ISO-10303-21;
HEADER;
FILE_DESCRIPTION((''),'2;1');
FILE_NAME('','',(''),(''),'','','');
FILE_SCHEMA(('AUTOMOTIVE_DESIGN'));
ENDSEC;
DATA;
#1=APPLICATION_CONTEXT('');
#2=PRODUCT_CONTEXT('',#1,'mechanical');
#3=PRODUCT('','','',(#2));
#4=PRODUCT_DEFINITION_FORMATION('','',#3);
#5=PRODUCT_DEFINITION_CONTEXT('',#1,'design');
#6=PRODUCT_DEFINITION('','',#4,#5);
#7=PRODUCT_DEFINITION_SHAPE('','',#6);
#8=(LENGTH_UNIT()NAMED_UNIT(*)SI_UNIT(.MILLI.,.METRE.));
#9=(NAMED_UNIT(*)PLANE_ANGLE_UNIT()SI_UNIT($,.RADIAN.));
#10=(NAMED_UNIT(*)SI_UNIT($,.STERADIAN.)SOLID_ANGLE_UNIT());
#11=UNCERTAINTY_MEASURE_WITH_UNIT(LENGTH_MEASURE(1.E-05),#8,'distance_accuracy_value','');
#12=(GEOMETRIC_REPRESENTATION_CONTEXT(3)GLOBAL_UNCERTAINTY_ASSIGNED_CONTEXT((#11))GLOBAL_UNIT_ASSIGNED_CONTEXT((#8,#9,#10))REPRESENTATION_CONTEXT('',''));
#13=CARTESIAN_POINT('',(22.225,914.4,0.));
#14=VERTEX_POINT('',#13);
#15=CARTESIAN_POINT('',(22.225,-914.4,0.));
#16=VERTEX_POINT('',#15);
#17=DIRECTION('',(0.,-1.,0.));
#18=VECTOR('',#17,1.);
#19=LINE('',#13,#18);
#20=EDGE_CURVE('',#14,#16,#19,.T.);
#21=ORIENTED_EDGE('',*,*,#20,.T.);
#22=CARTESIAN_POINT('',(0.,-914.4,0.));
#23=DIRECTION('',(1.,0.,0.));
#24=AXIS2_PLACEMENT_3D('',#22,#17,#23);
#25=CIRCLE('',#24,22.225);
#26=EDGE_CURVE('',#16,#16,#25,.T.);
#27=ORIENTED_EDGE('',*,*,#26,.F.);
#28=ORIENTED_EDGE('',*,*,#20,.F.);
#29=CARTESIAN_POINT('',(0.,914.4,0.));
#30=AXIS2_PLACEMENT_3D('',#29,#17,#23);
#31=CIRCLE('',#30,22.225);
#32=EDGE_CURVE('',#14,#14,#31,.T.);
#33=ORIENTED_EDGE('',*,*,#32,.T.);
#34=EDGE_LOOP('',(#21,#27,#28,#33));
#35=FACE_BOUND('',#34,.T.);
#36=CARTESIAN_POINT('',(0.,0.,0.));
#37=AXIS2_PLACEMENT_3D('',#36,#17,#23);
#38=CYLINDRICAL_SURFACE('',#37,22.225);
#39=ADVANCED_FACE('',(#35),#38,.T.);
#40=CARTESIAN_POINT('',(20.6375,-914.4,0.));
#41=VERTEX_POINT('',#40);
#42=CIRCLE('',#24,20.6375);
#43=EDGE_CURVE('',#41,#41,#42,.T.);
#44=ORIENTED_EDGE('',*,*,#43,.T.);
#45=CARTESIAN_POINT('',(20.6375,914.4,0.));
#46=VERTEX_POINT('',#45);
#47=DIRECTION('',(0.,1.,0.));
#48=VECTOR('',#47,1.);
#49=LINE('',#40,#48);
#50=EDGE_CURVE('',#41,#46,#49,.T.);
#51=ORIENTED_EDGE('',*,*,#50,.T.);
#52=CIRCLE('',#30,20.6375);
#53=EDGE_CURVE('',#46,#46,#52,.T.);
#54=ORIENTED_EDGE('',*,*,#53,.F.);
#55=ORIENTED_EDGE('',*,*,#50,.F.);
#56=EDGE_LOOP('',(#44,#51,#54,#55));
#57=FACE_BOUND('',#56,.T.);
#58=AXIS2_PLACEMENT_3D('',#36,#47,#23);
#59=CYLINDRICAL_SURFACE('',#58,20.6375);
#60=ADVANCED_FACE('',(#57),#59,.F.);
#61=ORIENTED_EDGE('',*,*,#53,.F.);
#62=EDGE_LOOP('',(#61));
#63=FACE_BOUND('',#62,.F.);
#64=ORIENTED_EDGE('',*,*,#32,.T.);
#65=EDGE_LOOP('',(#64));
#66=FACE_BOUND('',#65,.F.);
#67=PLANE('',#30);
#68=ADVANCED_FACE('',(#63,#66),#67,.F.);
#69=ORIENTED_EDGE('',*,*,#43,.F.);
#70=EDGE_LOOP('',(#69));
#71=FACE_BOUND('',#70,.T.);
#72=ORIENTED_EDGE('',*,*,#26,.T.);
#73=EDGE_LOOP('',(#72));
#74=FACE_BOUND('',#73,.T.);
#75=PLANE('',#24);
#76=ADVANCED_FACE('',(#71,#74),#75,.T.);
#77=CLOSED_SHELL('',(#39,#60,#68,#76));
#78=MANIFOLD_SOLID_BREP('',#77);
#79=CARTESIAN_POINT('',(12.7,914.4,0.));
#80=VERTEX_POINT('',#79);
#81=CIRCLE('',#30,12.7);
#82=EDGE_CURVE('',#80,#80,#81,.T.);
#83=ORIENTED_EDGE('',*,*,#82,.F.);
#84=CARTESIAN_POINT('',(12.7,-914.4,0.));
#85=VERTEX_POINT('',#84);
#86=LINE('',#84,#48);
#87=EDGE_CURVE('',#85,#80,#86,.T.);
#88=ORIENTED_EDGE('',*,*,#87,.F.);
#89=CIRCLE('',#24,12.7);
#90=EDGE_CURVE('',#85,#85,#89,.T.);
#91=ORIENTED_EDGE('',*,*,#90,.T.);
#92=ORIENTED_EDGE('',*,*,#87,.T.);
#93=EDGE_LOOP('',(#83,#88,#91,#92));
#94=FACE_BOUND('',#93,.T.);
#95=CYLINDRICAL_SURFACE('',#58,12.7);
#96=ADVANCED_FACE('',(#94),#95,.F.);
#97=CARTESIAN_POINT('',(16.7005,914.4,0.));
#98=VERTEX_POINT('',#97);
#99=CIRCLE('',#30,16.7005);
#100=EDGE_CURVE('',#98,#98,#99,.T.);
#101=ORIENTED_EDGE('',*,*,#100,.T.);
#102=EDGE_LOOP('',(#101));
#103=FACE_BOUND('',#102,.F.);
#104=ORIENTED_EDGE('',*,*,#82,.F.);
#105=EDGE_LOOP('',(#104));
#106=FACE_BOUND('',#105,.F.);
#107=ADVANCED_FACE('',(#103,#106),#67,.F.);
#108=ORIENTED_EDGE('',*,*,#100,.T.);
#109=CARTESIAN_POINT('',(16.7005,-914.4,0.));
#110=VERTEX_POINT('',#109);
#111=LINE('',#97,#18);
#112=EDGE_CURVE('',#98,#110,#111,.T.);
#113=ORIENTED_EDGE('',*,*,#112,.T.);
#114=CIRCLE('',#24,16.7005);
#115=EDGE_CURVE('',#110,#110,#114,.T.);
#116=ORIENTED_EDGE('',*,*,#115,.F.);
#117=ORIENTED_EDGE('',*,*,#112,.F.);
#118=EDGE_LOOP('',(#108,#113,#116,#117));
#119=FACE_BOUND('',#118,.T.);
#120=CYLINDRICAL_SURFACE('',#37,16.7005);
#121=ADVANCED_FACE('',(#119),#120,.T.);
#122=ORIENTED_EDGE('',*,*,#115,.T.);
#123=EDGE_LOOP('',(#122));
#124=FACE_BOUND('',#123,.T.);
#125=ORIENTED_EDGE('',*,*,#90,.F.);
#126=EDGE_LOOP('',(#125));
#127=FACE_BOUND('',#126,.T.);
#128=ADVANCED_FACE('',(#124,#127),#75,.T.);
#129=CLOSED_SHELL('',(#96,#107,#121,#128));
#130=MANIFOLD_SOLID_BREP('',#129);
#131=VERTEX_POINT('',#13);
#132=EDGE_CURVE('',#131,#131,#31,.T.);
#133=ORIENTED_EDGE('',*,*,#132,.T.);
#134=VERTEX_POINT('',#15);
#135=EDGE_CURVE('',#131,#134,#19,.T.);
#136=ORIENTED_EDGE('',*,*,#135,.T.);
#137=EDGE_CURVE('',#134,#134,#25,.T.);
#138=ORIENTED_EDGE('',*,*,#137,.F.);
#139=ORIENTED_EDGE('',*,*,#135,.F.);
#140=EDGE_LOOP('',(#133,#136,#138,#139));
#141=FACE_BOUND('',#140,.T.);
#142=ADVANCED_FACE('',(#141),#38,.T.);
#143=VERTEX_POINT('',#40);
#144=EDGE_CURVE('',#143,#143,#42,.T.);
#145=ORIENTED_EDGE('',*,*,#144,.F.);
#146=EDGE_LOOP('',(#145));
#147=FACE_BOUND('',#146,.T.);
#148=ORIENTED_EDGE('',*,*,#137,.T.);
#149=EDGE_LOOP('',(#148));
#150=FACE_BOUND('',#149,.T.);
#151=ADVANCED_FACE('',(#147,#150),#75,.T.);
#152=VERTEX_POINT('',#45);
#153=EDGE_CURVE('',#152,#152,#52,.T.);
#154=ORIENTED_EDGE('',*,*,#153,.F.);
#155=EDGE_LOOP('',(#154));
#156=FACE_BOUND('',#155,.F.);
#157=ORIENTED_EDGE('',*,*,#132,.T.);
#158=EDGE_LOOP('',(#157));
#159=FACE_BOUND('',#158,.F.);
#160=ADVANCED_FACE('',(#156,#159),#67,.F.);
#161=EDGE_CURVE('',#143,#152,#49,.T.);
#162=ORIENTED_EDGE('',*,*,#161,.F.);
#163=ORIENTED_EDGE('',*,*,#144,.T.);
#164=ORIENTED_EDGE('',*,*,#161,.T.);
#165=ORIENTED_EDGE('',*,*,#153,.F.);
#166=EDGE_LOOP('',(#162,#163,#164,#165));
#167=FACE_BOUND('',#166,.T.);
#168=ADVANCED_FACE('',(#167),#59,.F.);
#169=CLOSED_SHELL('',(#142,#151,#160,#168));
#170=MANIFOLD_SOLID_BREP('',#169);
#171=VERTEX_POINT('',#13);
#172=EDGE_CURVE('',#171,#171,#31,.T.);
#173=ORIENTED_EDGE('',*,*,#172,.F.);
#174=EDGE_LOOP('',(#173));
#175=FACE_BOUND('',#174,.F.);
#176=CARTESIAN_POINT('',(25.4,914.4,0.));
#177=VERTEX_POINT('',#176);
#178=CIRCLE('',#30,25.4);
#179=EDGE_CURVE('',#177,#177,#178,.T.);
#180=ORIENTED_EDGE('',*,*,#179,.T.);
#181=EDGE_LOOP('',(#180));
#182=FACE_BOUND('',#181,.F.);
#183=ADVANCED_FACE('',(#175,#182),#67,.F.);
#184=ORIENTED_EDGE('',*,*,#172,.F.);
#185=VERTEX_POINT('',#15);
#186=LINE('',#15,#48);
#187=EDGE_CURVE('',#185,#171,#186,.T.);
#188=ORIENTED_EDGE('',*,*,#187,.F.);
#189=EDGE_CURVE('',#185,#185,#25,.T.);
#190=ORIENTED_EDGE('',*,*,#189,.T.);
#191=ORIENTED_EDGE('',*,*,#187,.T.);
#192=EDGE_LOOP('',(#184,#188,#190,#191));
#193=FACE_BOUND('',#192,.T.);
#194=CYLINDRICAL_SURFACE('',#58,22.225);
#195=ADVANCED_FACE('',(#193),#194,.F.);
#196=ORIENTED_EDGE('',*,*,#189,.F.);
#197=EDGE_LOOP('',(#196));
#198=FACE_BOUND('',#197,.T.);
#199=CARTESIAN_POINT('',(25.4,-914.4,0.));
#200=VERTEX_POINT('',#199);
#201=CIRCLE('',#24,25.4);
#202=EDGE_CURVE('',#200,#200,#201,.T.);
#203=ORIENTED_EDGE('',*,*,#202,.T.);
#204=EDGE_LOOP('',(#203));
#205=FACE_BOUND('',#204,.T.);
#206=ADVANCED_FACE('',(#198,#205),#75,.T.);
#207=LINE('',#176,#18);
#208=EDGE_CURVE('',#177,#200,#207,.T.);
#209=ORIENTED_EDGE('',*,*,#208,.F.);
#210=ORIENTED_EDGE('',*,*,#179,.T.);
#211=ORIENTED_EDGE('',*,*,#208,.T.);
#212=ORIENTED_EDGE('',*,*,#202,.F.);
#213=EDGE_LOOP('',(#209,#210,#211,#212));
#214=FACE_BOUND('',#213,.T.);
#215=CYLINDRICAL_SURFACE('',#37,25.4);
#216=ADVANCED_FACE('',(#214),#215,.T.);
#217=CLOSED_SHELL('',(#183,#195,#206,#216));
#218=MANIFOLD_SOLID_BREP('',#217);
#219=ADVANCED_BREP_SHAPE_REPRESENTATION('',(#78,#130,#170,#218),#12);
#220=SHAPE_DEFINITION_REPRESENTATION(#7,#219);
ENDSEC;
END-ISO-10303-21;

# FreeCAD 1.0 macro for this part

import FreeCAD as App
import Part
import Sketcher

V = App.Vector
Q = App.Units.Quantity

doc = App.newDocument("Part")
body = doc.addObject("PartDesign::Body", "Body")

sketch1 = doc.addObject("Sketcher::SketchObject", "Sketch")
body.addObject(sketch1)
sketch1.AttachmentSupport = (doc.XZ_Plane, [""])
sketch1.MapMode = "FlatFace"
sketch1.addGeometry([
    Part.Circle(V(0, 0, 0), V(0, 0, 1), 22),
    Part.Circle(V(0, 0, 0), V(0, 0, 1), 21),
], False)
sketch1.addConstraint([
    Sketcher.Constraint("Coincident", 0, 3, -1, 1),
    Sketcher.Constraint("Coincident", 1, 3, -1, 1),
    Sketcher.Constraint("Diameter", 0, Q("1.75 in")),
    Sketcher.Constraint("Diameter", 1, Q("1.625 in")),
])
pad1 = doc.addObject("PartDesign::Pad", "Pad")
body.addObject(pad1)
pad1.Profile = sketch1
pad1.Length = Q("72 in")
pad1.Midplane = True
body2 = doc.addObject("PartDesign::Body", "Body001")

sketch2 = doc.addObject("Sketcher::SketchObject", "Sketch001")
body2.addObject(sketch2)
sketch2.AttachmentSupport = (doc.getObject("XZ_Plane001"), [""])
sketch2.MapMode = "FlatFace"
sketch2.addGeometry([
    Part.Circle(V(0, 0, 0), V(0, 0, 1), 22),
    Part.Circle(V(0, 0, 0), V(0, 0, 1), 21),
], False)
sketch2.addConstraint([
    Sketcher.Constraint("Coincident", 0, 3, -1, 1),
    Sketcher.Constraint("Coincident", 1, 3, -1, 1),
    Sketcher.Constraint("Diameter", 0, Q("1.75 in")),
    Sketcher.Constraint("Diameter", 1, Q("1.625 in")),
])
pad2 = doc.addObject("PartDesign::Pad", "Pad001")
body2.addObject(pad2)
pad2.Profile = sketch2
pad2.Length = Q("72 in")
pad2.Midplane = True
body3 = doc.addObject("PartDesign::Body", "Body002")

sketch3 = doc.addObject("Sketcher::SketchObject", "Sketch002")
body3.addObject(sketch3)
sketch3.AttachmentSupport = (doc.getObject("XZ_Plane002"), [""])
sketch3.MapMode = "FlatFace"
sketch3.addGeometry([
    Part.Circle(V(0, 0, 0), V(0, 0, 1), 25),
    Part.Circle(V(0, 0, 0), V(0, 0, 1), 22),
], False)
sketch3.addConstraint([
    Sketcher.Constraint("Coincident", 0, 3, -1, 1),
    Sketcher.Constraint("Coincident", 1, 3, -1, 1),
    Sketcher.Constraint("Diameter", 0, Q("2 in")),
    Sketcher.Constraint("Diameter", 1, Q("1.75 in")),
])
pad3 = doc.addObject("PartDesign::Pad", "Pad002")
body3.addObject(pad3)
pad3.Profile = sketch3
pad3.Length = Q("72 in")
pad3.Midplane = True
body4 = doc.addObject("PartDesign::Body", "Body003")

sketch4 = doc.addObject("Sketcher::SketchObject", "Sketch003")
body4.addObject(sketch4)
sketch4.AttachmentSupport = (doc.getObject("XZ_Plane003"), [""])
sketch4.MapMode = "FlatFace"
sketch4.addGeometry([
    Part.Circle(V(0, 0, 0), V(0, 0, 1), 17),
    Part.Circle(V(0, 0, 0), V(0, 0, 1), 13),
], False)
sketch4.addConstraint([
    Sketcher.Constraint("Coincident", 0, 3, -1, 1),
    Sketcher.Constraint("Coincident", 1, 3, -1, 1),
    Sketcher.Constraint("Diameter", 1, Q("1 in")),
    Sketcher.Constraint("Diameter", 0, Q("1.315 in")),
])
pad4 = doc.addObject("PartDesign::Pad", "Pad003")
body4.addObject(pad4)
pad4.Profile = sketch4
pad4.Length = Q("72 in")
pad4.Midplane = True

doc.recompute()
